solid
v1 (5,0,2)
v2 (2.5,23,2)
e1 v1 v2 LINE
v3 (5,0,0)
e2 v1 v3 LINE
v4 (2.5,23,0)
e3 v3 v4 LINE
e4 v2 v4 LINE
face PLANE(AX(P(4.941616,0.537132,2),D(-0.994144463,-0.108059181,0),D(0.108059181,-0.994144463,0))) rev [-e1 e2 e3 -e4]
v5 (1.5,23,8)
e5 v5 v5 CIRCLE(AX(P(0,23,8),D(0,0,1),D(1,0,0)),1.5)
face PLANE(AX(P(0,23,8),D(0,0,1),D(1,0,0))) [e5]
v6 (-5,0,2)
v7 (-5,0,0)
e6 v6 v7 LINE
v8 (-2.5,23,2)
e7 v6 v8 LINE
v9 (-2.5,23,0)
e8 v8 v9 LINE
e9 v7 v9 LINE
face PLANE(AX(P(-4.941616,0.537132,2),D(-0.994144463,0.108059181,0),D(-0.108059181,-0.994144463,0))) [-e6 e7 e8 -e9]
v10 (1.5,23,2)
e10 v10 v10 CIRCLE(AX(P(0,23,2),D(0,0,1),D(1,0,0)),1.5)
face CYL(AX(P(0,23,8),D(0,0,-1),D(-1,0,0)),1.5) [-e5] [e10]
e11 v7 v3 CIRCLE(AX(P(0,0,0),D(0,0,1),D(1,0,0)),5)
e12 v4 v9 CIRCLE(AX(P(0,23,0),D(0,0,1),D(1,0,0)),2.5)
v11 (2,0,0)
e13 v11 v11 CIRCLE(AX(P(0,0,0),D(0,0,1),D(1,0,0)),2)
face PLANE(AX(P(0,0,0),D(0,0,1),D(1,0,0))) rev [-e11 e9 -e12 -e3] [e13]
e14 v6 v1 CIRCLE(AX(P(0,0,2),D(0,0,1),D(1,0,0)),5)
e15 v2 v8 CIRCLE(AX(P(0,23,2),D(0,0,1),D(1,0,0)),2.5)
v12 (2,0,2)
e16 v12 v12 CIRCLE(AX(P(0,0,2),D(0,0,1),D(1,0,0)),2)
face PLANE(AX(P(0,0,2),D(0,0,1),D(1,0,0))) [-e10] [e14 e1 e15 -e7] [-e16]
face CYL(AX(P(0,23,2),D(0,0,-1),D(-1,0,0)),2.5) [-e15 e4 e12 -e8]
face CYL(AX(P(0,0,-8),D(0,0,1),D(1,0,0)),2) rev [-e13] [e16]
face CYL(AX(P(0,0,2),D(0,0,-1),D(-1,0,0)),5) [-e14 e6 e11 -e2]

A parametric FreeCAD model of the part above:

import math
import FreeCAD as App
import Part
import Sketcher

V = App.Vector
Q = App.Units.Quantity

doc = App.newDocument("Part")
body = doc.addObject("PartDesign::Body", "Body")

sketch1 = body.newObject("Sketcher::SketchObject", "Sketch")
sketch1.AttachmentSupport = (doc.getObject("XY_Plane"), [""])
sketch1.MapMode = "FlatFace"
sketch1.addGeometry(Part.LineSegment(V(-4.9, 1.1, 0), V(-5, 0, 0)), False)
sketch1.addGeometry(Part.ArcOfCircle(Part.Circle(V(0, 0, 0), V(0, 0, 1), 5), math.radians(180), math.radians(360)), False)
sketch1.addGeometry(Part.LineSegment(V(5, 0, 0), V(4.9, 1.1, 0)), False)
sketch1.addGeometry(Part.LineSegment(V(4.9, 1.1, 0), V(2.5, 23, 0)), False)
sketch1.addGeometry(Part.ArcOfCircle(Part.Circle(V(0, 23, 0), V(0, 0, 1), 2.5), math.radians(0), math.radians(180)), False)
sketch1.addGeometry(Part.LineSegment(V(-2.5, 23, 0), V(-4.9, 1.1, 0)), False)
sketch1.addGeometry(Part.Circle(V(0, 23, 0), V(0, 0, 1), 1.5), False)
sketch1.addConstraint(Sketcher.Constraint("Coincident", 0, 2, 1, 1))
sketch1.addConstraint(Sketcher.Constraint("Coincident", 1, 2, 2, 1))
sketch1.addConstraint(Sketcher.Constraint("Coincident", 2, 2, 3, 1))
sketch1.addConstraint(Sketcher.Constraint("Coincident", 3, 2, 4, 1))
sketch1.addConstraint(Sketcher.Constraint("Coincident", 4, 2, 5, 1))
sketch1.addConstraint(Sketcher.Constraint("Coincident", 5, 2, 0, 1))
sketch1.addConstraint(Sketcher.Constraint("Coincident", 1, 3, -1, 1))
sketch1.addConstraint(Sketcher.Constraint("Coincident", 6, 3, 4, 3))
sketch1.addConstraint(Sketcher.Constraint("Symmetric", 3, 2, 4, 2, -2))
sketch1.addConstraint(Sketcher.Constraint("Symmetric", 2, 2, 5, 2, -2))
sketch1.addConstraint(Sketcher.Constraint("PointOnObject", 0, 2, -1))
sketch1.addConstraint(Sketcher.Constraint("PointOnObject", 1, 2, -1))
sketch1.addConstraint(Sketcher.Constraint("Parallel", 2, 3))
sketch1.addConstraint(Sketcher.Constraint("Horizontal", 6, 3, 3, 2))
sketch1.addConstraint(Sketcher.Constraint("Diameter", 6, Q("3 mm")))
sketch1.addConstraint(Sketcher.Constraint("Radius", 1, Q("5 mm")))
sketch1.addConstraint(Sketcher.Constraint("Radius", 4, Q("2.5 mm")))
sketch1.addConstraint(Sketcher.Constraint("DistanceY", -1, 1, 4, 3, Q("23 mm")))
sketch1.addConstraint(Sketcher.Constraint("Distance", 0, Q("1.080592 mm")))
pad1 = body.newObject("PartDesign::Pad", "Pad")
pad1.Profile = sketch1
pad1.Length = 2

sketch2 = body.newObject("Sketcher::SketchObject", "Sketch001")
sketch2.AttachmentSupport = (doc.getObject("XY_Plane"), [""])
sketch2.MapMode = "FlatFace"
sketch2.addGeometry(Part.Circle(V(0, 23, 0), V(0, 0, 1), 1.5), False)
sketch2.addConstraint(Sketcher.Constraint("PointOnObject", 0, 3, -2))
sketch2.addConstraint(Sketcher.Constraint("Diameter", 0, Q("3 mm")))
sketch2.addConstraint(Sketcher.Constraint("DistanceY", -1, 1, 0, 3, Q("23 mm")))
pad2 = body.newObject("PartDesign::Pad", "Pad001")
pad2.Profile = sketch2
pad2.Length = 8

sketch3 = body.newObject("Sketcher::SketchObject", "Sketch002")
sketch3.AttachmentSupport = (doc.getObject("XY_Plane"), [""])
sketch3.MapMode = "FlatFace"
sketch3.AttachmentOffset = App.Placement(V(0, 0, 2), App.Rotation())
sketch3.addGeometry(Part.Circle(V(0, 0, 0), V(0, 0, 1), 2), False)
sketch3.addConstraint(Sketcher.Constraint("Coincident", 0, 3, -1, 1))
sketch3.addConstraint(Sketcher.Constraint("Diameter", 0, Q("4 mm")))
pocket1 = body.newObject("PartDesign::Pocket", "Pocket")
pocket1.Profile = sketch3
pocket1.Length = 10

doc.recompute()
